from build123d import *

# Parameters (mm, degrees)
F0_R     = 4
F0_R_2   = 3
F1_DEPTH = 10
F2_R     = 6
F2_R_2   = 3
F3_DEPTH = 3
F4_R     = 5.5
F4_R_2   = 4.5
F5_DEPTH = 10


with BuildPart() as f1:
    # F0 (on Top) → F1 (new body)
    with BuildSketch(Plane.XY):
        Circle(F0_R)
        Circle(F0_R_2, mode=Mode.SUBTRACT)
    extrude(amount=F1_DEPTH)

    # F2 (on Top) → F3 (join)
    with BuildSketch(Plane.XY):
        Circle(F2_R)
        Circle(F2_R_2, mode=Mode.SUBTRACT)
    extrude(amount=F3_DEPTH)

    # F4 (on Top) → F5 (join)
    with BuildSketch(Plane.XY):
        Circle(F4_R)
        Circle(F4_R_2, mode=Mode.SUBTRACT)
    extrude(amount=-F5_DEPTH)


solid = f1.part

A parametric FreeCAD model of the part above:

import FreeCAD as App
import Part
import Sketcher

V = App.Vector
Q = App.Units.Quantity

doc = App.newDocument("Part")
body = doc.addObject("PartDesign::Body", "Body")

# Sketch on XY plane
sketch1 = body.newObject("Sketcher::SketchObject", "Sketch")
sketch1.AttachmentSupport = (doc.getObject("XY_Plane"), [""])
sketch1.MapMode = "FlatFace"
sketch1.addGeometry([
    Part.Circle(V(0, 0, 0), V(0, 0, 1), 4),
    Part.Circle(V(0, 0, 0), V(0, 0, 1), 3),
], False)
sketch1.addConstraint([
    Sketcher.Constraint("Coincident", 0, 3, -1, 1),
    Sketcher.Constraint("Coincident", 1, 3, -1, 1),
    Sketcher.Constraint("Diameter", 0, Q("8 mm")),
    Sketcher.Constraint("Diameter", 1, Q("6 mm")),
])
pad1 = body.newObject("PartDesign::Pad", "Pad")
pad1.Profile = sketch1
pad1.Length = 10

# Sketch on XY plane
sketch2 = body.newObject("Sketcher::SketchObject", "Sketch001")
sketch2.AttachmentSupport = (doc.getObject("XY_Plane"), [""])
sketch2.MapMode = "FlatFace"
sketch2.addGeometry([
    Part.Circle(V(0, 0, 0), V(0, 0, 1), 6),
    Part.Circle(V(0, 0, 0), V(0, 0, 1), 3),
], False)
sketch2.addConstraint([
    Sketcher.Constraint("Coincident", 0, 3, -1, 1),
    Sketcher.Constraint("Coincident", 1, 3, -1, 1),
    Sketcher.Constraint("Diameter", 0, Q("12 mm")),
    Sketcher.Constraint("Diameter", 1, Q("6 mm")),
])
pad2 = body.newObject("PartDesign::Pad", "Pad001")
pad2.Profile = sketch2
pad2.Length = 3

# Sketch on XY plane
sketch3 = body.newObject("Sketcher::SketchObject", "Sketch002")
sketch3.AttachmentSupport = (doc.getObject("XY_Plane"), [""])
sketch3.MapMode = "FlatFace"
sketch3.addGeometry([
    Part.Circle(V(0, 0, 0), V(0, 0, 1), 5.5),
    Part.Circle(V(0, 0, 0), V(0, 0, 1), 4.5),
], False)
sketch3.addConstraint([
    Sketcher.Constraint("Coincident", 0, 3, -1, 1),
    Sketcher.Constraint("Coincident", 1, 3, -1, 1),
    Sketcher.Constraint("Diameter", 0, Q("11 mm")),
    Sketcher.Constraint("Diameter", 1, Q("9 mm")),
])
pad3 = body.newObject("PartDesign::Pad", "Pad002")
pad3.Profile = sketch3
pad3.Length = 10
pad3.Reversed = True

doc.recompute()
